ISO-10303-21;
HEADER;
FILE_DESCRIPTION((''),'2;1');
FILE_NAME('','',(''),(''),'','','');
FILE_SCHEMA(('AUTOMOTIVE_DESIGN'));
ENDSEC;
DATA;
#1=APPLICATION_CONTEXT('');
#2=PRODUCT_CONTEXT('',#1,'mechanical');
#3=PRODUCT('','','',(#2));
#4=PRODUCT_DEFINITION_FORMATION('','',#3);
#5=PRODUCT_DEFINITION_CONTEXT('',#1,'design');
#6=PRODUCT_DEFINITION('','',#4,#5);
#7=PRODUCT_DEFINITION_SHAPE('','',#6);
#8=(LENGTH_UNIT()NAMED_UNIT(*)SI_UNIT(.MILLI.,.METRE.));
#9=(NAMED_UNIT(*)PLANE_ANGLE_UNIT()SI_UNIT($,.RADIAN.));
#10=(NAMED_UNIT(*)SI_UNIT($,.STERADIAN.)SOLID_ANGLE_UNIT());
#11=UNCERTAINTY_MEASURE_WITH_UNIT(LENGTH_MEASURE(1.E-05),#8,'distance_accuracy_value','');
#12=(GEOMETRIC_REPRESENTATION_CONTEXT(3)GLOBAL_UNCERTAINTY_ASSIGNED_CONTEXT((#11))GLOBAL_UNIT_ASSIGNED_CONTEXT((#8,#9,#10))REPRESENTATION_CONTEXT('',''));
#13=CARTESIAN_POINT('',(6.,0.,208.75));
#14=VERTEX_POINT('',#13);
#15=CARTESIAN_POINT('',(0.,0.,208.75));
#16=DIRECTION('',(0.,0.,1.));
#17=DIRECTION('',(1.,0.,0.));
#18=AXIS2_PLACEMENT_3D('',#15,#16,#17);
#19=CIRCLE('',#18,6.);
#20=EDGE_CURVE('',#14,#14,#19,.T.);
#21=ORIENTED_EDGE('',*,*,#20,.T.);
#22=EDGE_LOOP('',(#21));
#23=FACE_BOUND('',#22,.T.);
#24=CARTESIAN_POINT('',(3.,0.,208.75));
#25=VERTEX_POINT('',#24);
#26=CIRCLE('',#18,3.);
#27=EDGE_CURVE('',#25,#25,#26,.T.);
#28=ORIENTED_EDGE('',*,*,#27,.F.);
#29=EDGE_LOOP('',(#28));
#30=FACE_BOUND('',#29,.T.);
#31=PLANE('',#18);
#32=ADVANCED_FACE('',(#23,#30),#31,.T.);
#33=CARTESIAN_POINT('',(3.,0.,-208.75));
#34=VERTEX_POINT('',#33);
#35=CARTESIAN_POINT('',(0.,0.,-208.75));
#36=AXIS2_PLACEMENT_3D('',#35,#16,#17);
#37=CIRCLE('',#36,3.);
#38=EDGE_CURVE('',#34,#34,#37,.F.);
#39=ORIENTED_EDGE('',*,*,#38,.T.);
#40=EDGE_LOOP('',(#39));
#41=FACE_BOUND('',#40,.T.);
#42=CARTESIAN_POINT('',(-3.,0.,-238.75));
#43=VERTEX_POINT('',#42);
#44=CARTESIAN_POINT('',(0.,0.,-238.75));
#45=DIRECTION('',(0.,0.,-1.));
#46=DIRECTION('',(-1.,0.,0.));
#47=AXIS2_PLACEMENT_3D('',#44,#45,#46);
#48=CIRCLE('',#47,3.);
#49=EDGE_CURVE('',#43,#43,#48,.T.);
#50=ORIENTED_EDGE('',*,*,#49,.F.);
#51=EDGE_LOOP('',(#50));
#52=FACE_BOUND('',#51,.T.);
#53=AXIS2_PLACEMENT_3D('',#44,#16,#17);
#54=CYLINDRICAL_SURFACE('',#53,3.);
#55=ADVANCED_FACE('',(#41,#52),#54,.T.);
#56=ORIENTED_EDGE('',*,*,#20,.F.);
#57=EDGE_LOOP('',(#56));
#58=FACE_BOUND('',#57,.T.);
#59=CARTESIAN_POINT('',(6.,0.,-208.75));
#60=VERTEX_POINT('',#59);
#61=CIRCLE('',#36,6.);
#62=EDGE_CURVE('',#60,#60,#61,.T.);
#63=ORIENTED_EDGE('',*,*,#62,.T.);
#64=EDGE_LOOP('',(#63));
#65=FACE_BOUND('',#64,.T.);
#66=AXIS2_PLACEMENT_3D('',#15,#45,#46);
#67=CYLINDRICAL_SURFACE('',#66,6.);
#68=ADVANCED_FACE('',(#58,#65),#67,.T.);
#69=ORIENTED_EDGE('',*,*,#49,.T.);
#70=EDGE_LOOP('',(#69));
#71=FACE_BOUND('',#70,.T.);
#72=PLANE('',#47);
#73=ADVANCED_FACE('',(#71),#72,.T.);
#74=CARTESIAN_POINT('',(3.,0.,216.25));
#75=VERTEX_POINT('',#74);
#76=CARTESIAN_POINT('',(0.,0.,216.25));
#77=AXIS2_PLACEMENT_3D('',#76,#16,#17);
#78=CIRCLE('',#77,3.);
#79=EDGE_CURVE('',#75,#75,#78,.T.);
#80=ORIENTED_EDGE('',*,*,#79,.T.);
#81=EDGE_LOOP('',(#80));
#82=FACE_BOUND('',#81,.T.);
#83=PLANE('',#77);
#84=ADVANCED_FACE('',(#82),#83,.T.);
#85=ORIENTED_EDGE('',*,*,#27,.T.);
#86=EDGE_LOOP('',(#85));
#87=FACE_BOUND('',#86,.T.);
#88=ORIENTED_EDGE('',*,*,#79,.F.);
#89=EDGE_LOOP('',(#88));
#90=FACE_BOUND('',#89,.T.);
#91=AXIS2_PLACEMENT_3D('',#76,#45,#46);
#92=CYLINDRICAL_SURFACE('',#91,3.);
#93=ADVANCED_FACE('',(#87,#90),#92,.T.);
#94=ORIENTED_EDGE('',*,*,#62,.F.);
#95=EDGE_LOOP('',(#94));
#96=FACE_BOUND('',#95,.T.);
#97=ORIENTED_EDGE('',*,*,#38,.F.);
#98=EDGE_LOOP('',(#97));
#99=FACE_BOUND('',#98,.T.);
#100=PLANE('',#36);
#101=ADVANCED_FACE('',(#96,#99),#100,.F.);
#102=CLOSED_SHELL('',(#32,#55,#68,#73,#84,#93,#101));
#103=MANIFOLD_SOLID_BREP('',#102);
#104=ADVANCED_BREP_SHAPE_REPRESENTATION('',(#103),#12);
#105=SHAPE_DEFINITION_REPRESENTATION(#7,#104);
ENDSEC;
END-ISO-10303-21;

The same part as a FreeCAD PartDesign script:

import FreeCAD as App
import Part
import Sketcher
from FreeCAD import Vector

doc = App.newDocument("Part")
params = doc.addObject("Spreadsheet::Sheet", "Params")
for row, (alias, value) in enumerate([
    ("sketch1_diameter", "12 mm"),
    ("pad1_length", "417.5 mm"),
    ("sketch2_diameter", "6 mm"),
    ("pad2_length", "7.5 mm"),
    ("sketch3_diameter", "6 mm"),
    ("pad3_length", "30 mm"),
], start=1):
    params.set(f"A{row}", alias)
    params.set(f"B{row}", "=" + value)
    params.setAlias(f"B{row}", alias)

body = doc.addObject("PartDesign::Body", "Body")

# Sketch on XY plane
sketch1 = body.newObject("Sketcher::SketchObject", "Sketch")
sketch1.AttachmentSupport = (doc.getObject("XY_Plane"), [""])
sketch1.MapMode = "FlatFace"
sketch1.addGeometry(Part.Circle(Vector(0, 0, 0), Vector(0, 0, 1), 6), False)
sketch1.addConstraint(Sketcher.Constraint("Coincident", 0, 3, -1, 1))
sketch1.addConstraint(Sketcher.Constraint("Diameter", 0, 12.0))
sketch1.setExpression("Constraints[1]", "Params.sketch1_diameter")
pad1 = body.newObject("PartDesign::Pad", "Pad")
pad1.Profile = sketch1
pad1.setExpression("Length", "Params.pad1_length")
pad1.Midplane = True

# Sketch on XY plane
sketch2 = body.newObject("Sketcher::SketchObject", "Sketch001")
sketch2.AttachmentSupport = (doc.getObject("XY_Plane"), [""])
sketch2.MapMode = "FlatFace"
sketch2.AttachmentOffset = App.Placement(Vector(0, 0, 208.75), App.Rotation())
sketch2.addGeometry(Part.Circle(Vector(0, 0, 0), Vector(0, 0, 1), 3), False)
sketch2.addConstraint(Sketcher.Constraint("Coincident", 0, 3, -1, 1))
sketch2.addConstraint(Sketcher.Constraint("Diameter", 0, 6.0))
sketch2.setExpression("Constraints[1]", "Params.sketch2_diameter")
pad2 = body.newObject("PartDesign::Pad", "Pad001")
pad2.Profile = sketch2
pad2.setExpression("Length", "Params.pad2_length")

# Sketch on XY plane
sketch3 = body.newObject("Sketcher::SketchObject", "Sketch002")
sketch3.AttachmentSupport = (doc.getObject("XY_Plane"), [""])
sketch3.MapMode = "FlatFace"
sketch3.AttachmentOffset = App.Placement(Vector(0, 0, -238.75), App.Rotation())
sketch3.addGeometry(Part.Circle(Vector(0, 0, 0), Vector(0, 0, 1), 3), False)
sketch3.addConstraint(Sketcher.Constraint("Coincident", 0, 3, -1, 1))
sketch3.addConstraint(Sketcher.Constraint("Diameter", 0, 6.0))
sketch3.setExpression("Constraints[1]", "Params.sketch3_diameter")
pad3 = body.newObject("PartDesign::Pad", "Pad002")
pad3.Profile = sketch3
pad3.setExpression("Length", "Params.pad3_length")

doc.recompute()
